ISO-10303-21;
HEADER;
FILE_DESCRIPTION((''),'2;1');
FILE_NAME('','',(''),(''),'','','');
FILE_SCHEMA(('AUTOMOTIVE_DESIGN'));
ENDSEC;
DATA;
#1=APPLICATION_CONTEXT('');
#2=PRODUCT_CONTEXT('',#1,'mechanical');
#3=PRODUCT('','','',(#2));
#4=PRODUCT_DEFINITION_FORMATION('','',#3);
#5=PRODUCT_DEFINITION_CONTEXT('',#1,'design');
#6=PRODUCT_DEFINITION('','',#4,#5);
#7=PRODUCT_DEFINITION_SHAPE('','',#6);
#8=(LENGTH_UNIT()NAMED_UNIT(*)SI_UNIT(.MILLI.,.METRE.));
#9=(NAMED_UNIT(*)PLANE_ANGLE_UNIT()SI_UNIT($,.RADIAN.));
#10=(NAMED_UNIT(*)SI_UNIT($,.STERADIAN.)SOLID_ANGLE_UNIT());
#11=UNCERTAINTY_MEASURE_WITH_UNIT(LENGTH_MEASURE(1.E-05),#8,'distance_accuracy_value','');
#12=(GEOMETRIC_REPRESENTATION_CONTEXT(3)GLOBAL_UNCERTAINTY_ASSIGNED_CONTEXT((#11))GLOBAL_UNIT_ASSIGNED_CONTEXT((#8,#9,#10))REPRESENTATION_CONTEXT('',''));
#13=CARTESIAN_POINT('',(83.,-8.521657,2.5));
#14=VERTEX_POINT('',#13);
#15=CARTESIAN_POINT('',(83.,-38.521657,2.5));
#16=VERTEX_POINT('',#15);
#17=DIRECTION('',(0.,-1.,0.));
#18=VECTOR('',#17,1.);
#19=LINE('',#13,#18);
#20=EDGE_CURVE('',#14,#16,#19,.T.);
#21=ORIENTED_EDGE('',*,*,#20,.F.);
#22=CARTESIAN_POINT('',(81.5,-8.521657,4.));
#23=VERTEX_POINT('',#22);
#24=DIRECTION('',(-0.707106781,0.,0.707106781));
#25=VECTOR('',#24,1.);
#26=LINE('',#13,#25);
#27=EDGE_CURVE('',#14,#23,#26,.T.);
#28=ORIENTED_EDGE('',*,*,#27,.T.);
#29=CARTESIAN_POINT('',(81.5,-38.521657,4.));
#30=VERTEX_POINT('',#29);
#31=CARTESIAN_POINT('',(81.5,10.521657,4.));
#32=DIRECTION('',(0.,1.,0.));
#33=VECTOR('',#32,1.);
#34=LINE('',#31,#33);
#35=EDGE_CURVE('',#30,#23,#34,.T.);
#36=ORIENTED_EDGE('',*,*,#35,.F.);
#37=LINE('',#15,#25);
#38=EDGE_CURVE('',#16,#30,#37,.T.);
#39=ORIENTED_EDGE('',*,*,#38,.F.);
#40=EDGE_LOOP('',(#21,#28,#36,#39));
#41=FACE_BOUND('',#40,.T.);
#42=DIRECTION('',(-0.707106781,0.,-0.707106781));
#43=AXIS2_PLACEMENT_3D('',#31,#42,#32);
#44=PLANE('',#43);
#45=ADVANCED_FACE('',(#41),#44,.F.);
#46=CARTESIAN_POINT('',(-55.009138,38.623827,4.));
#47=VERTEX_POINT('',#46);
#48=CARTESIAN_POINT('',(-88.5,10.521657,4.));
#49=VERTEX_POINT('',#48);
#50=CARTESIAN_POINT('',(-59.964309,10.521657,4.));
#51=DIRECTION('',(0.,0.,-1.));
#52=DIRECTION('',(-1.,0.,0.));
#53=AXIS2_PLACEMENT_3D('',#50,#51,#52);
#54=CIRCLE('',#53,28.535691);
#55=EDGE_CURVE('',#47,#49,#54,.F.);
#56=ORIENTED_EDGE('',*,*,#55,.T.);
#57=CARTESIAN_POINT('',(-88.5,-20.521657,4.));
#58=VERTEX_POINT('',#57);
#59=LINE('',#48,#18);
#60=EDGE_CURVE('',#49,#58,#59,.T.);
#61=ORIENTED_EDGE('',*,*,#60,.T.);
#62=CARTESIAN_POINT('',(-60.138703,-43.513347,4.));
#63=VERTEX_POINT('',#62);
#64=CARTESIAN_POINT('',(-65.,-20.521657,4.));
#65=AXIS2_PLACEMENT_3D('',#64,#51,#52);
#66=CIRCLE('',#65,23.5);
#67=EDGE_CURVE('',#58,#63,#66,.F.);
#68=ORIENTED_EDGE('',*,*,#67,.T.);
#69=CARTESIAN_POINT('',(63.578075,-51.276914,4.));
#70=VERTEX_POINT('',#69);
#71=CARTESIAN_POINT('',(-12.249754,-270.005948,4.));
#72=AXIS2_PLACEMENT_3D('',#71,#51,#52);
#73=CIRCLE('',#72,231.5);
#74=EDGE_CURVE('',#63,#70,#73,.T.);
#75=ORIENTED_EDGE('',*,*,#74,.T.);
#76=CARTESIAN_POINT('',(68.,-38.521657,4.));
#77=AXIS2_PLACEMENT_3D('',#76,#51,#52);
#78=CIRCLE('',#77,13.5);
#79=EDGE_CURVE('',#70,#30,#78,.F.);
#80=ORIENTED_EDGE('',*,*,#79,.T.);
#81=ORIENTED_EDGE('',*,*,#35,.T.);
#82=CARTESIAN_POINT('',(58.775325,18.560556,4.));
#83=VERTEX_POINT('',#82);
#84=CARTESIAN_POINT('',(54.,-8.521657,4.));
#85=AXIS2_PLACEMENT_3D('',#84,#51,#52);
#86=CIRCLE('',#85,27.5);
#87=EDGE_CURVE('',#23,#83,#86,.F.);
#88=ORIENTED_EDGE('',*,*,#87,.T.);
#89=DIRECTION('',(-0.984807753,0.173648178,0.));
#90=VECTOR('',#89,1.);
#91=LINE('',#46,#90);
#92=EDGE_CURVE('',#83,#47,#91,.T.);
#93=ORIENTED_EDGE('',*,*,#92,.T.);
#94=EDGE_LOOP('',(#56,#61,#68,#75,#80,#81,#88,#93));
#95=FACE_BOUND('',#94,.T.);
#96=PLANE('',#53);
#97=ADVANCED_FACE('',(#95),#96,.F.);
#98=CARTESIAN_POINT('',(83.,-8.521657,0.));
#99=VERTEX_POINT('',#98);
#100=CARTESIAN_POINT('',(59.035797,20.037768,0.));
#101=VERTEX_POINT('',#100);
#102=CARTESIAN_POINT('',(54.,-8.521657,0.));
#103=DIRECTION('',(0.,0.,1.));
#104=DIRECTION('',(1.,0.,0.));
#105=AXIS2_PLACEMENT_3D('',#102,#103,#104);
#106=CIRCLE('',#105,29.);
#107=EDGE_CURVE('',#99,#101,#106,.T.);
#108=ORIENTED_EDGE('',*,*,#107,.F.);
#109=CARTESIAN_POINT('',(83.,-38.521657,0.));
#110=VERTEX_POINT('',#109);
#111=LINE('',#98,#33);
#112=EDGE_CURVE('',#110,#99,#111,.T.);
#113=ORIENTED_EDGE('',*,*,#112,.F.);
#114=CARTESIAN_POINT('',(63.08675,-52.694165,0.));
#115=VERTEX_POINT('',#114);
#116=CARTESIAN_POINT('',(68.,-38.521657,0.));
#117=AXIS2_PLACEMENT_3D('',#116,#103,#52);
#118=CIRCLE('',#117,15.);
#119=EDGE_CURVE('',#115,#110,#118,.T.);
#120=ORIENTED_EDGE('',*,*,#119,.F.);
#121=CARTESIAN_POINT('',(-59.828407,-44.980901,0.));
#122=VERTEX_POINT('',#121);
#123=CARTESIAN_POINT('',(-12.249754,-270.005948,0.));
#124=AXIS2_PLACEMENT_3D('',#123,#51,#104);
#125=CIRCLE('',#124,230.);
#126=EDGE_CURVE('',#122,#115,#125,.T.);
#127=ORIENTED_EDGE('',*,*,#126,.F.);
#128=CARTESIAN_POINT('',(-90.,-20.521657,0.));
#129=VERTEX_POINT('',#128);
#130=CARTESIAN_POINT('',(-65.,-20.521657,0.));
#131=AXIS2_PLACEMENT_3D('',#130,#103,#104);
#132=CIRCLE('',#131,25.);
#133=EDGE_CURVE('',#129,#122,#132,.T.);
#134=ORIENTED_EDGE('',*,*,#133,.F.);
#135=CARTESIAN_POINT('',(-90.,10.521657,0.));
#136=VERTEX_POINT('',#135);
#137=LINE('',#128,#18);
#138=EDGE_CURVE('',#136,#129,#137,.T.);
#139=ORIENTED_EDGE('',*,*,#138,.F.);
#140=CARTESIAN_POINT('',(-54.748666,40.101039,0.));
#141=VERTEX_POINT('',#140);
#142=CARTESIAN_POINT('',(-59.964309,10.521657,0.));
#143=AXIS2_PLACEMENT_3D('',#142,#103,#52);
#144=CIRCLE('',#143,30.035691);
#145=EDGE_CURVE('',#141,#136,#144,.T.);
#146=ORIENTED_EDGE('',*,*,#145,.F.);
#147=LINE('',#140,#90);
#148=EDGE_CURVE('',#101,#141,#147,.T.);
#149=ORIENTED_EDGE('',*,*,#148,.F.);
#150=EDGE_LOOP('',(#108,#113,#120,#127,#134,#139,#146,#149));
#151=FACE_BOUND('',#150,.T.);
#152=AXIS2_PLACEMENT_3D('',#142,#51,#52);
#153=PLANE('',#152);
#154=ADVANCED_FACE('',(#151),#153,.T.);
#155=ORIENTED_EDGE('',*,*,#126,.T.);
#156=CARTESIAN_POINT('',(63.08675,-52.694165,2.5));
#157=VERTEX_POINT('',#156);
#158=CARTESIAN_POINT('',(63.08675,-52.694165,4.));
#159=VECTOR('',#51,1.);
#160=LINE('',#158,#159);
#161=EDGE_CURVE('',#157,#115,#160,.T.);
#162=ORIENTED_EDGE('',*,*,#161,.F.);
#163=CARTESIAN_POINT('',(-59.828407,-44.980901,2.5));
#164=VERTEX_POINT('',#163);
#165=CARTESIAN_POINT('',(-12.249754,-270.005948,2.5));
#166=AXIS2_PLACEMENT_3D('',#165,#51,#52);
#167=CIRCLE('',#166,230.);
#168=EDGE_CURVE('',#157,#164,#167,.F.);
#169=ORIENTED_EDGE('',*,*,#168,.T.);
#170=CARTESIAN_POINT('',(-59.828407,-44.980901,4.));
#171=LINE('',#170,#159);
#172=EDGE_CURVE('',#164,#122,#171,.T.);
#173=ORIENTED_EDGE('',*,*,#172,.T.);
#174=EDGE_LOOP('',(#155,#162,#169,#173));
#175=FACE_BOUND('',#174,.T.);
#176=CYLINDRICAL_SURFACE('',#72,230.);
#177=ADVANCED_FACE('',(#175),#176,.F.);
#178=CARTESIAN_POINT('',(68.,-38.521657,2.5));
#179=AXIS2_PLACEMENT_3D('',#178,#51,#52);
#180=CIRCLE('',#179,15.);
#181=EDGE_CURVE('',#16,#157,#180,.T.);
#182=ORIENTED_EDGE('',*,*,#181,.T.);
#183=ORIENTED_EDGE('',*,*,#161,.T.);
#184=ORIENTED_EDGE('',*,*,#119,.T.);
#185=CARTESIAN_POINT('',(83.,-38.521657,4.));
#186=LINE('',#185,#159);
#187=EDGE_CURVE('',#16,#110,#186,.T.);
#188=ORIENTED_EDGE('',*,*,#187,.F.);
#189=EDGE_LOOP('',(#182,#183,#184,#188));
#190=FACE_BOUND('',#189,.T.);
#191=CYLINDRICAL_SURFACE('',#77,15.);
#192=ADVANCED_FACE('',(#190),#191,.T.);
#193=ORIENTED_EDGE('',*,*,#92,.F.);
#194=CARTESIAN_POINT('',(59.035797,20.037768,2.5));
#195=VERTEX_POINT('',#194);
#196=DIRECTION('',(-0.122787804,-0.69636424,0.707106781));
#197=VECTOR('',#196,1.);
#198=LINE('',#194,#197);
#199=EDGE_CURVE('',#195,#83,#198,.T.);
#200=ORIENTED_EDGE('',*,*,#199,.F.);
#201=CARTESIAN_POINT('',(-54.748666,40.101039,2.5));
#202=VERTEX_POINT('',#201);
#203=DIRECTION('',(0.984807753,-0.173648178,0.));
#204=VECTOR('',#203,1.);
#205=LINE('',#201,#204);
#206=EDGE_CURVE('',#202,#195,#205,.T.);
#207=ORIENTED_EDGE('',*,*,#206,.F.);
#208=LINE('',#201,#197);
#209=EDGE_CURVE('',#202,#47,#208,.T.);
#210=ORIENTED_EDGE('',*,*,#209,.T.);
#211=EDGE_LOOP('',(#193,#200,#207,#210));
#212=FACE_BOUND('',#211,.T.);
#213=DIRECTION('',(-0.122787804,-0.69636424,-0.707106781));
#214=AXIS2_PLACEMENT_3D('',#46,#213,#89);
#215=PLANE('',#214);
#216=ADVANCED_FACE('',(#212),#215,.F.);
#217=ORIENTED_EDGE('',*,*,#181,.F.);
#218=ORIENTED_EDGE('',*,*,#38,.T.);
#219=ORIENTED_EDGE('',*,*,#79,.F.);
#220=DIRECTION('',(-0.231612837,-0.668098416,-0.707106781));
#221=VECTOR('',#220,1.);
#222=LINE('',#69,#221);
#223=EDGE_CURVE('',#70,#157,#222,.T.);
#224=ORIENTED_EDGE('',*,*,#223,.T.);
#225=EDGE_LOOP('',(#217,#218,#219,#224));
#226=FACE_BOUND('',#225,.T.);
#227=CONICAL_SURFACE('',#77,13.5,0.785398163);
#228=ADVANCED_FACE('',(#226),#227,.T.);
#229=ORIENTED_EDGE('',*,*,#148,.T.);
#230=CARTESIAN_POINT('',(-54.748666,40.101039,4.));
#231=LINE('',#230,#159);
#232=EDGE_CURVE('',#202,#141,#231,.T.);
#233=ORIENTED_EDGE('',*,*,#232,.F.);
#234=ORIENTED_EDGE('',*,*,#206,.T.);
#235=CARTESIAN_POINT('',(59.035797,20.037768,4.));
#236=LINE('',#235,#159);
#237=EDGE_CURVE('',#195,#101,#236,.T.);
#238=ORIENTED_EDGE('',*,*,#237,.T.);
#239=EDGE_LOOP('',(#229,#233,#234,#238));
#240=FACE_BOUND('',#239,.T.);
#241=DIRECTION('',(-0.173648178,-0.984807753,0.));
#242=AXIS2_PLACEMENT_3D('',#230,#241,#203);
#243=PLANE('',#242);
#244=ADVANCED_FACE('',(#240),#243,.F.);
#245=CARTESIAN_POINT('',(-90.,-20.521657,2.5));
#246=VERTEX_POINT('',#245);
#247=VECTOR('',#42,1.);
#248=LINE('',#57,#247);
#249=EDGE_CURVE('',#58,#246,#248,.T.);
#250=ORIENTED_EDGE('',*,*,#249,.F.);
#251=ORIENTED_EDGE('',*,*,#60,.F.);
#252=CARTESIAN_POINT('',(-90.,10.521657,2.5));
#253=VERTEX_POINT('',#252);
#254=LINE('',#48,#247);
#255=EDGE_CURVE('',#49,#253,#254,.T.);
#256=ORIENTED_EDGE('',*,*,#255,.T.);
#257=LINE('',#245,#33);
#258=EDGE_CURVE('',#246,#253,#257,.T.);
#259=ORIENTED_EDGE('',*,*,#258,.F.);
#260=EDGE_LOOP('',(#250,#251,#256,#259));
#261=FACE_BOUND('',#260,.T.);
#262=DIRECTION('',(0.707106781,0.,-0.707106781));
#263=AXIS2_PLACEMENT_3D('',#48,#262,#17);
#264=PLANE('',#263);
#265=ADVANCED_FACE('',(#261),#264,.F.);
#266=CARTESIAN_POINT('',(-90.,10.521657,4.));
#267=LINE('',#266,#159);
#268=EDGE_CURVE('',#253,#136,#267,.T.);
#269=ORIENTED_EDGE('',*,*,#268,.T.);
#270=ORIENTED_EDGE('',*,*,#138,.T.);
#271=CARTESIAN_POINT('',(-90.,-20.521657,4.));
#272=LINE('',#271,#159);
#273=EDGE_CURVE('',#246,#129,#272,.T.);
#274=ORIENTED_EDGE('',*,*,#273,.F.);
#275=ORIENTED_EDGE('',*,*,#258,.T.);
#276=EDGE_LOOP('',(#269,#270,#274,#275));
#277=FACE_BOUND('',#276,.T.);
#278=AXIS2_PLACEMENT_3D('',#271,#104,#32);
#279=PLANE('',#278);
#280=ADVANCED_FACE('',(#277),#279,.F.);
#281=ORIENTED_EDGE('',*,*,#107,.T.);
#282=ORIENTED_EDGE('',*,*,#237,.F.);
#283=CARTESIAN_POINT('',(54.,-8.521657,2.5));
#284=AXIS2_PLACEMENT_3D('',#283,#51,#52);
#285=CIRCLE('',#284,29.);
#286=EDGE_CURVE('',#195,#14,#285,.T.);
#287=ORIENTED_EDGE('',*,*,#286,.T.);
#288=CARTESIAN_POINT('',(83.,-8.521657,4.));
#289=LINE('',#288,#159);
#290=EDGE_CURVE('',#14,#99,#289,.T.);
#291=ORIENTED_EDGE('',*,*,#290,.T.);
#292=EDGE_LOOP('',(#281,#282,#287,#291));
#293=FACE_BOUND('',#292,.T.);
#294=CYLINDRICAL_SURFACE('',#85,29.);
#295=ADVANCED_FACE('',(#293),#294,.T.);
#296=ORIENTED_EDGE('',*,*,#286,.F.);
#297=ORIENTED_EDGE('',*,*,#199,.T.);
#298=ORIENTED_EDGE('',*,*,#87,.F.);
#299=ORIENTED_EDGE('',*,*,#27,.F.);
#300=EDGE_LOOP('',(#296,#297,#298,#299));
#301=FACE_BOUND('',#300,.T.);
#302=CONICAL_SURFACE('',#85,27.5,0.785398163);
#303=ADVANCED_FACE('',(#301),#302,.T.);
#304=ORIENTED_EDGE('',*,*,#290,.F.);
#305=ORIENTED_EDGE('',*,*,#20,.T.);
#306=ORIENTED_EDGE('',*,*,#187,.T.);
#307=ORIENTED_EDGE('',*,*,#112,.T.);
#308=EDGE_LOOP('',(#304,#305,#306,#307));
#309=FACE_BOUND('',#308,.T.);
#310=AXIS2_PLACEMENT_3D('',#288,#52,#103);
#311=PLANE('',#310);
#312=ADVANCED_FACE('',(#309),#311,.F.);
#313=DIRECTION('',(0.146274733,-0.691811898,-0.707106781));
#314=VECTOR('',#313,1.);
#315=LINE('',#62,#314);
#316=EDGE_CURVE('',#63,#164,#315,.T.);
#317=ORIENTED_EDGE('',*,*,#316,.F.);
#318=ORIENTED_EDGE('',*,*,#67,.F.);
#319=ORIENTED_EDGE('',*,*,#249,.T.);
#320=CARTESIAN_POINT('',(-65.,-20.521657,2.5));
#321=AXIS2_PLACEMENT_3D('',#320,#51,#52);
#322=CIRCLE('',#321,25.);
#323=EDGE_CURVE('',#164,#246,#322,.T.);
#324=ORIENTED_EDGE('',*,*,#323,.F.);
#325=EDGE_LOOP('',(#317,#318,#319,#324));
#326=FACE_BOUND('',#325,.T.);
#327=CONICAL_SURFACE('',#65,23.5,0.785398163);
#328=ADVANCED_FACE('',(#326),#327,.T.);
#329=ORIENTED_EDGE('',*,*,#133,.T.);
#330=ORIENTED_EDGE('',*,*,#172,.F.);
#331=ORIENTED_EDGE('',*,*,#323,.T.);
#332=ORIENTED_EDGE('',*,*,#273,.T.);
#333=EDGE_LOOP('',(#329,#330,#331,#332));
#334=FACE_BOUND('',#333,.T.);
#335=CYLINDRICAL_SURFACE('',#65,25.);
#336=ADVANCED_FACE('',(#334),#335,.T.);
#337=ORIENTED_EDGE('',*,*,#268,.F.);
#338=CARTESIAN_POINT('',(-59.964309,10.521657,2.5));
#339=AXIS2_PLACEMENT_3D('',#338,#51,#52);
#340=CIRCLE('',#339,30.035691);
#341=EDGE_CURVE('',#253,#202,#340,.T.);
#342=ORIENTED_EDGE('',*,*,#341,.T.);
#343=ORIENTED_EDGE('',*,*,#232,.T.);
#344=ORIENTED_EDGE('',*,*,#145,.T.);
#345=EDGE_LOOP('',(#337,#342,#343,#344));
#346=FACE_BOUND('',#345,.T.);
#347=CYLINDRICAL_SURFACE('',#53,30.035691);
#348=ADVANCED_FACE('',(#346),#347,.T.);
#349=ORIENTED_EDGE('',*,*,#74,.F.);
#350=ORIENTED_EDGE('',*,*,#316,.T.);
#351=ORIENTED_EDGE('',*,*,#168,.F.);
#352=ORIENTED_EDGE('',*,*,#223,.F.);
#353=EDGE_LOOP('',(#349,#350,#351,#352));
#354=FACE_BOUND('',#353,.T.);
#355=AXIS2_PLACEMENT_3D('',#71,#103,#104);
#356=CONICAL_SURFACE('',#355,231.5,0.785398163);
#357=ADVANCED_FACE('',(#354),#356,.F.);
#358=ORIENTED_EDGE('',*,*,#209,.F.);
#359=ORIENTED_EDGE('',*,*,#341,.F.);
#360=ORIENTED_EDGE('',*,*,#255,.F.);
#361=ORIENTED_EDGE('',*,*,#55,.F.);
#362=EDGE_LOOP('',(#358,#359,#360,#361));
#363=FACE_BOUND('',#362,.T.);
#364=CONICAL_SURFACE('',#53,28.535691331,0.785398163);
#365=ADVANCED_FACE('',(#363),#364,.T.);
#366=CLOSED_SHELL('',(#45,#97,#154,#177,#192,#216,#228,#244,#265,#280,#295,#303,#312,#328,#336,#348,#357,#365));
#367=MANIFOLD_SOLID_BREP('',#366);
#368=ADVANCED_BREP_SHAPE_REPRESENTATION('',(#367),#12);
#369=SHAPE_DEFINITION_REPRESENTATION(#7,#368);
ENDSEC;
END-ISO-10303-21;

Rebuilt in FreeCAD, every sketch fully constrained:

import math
import FreeCAD as App
import Part
import Sketcher

V = App.Vector
Q = App.Units.Quantity


def edges_at(feature, points):
    """Names of the edges that pass closest to the given points."""
    edges = feature.Shape.Edges
    near = lambda p: min(range(len(edges)), key=lambda i: edges[i].distToShape(Part.Vertex(*p))[0])
    return sorted({f"Edge{near(p) + 1}" for p in points})

doc = App.newDocument("Part")
body = doc.addObject("PartDesign::Body", "Body")

# Sketch on XY plane
sketch1 = doc.addObject("Sketcher::SketchObject", "Sketch")
body.addObject(sketch1)
sketch1.AttachmentSupport = (doc.XY_Plane, [""])
sketch1.MapMode = "FlatFace"
sketch1.addGeometry([
    Part.LineSegment(V(59, 20, 0), V(-55, 40, 0)),  # 0
    Part.ArcOfCircle(Part.Circle(V(-60, 11, 0), V(0, 0, 1), 30), math.radians(80), math.radians(180)),  # 1
    Part.LineSegment(V(-90, 11, 0), V(-90, -21, 0)),  # 2
    Part.ArcOfCircle(Part.Circle(V(-65, -21, 0), V(0, 0, 1), 25), math.radians(180), math.radians(282)),  # 3
    Part.ArcOfCircle(Part.Circle(V(-12, -270, 0), V(0, 0, 1), 230), math.radians(71), math.radians(102)),  # 4
    Part.ArcOfCircle(Part.Circle(V(68, -39, 0), V(0, 0, 1), 15), math.radians(-109), math.radians(0)),  # 5
    Part.LineSegment(V(83, -39, 0), V(83, -9, 0)),  # 6
    Part.ArcOfCircle(Part.Circle(V(54, -9, 0), V(0, 0, 1), 29), math.radians(0), math.radians(80)),  # 7
], False)
sketch1.addConstraint([
    Sketcher.Constraint("Tangent", 0, 2, 1, 1),
    Sketcher.Constraint("Tangent", 1, 2, 2, 1),
    Sketcher.Constraint("Tangent", 2, 2, 3, 1),
    Sketcher.Constraint("Tangent", 3, 2, 4, 2),
    Sketcher.Constraint("Tangent", 4, 1, 5, 1),
    Sketcher.Constraint("Tangent", 5, 2, 6, 1),
    Sketcher.Constraint("Tangent", 6, 2, 7, 1),
    Sketcher.Constraint("Tangent", 7, 2, 0, 1),
    Sketcher.Constraint("Vertical", 2),
    Sketcher.Constraint("Vertical", 6),
    Sketcher.Constraint("Radius", 3, Q("25 mm")),
    Sketcher.Constraint("Radius", 4, Q("230 mm")),
    Sketcher.Constraint("Radius", 5, Q("15 mm")),
    Sketcher.Constraint("Radius", 7, Q("29 mm")),
    Sketcher.Constraint("DistanceY", 6, 1, 6, 2, Q("30 mm")),
    Sketcher.Constraint("Angle", 0, Q("170 deg")),
    Sketcher.Constraint("DistanceX", 3, 3, -1, 1, Q("65 mm")),
    Sketcher.Constraint("DistanceX", -1, 1, 5, 3, Q("68 mm")),
    Sketcher.Constraint("DistanceY", 5, 3, 3, 3, Q("18 mm")),
    Sketcher.Constraint("Radius", 1, Q("30.035691 mm")),
    Sketcher.Constraint("DistanceY", 3, 2, -1, 1, Q("44.980901 mm")),
])
pad1 = doc.addObject("PartDesign::Pad", "Pad")
body.addObject(pad1)
pad1.Profile = sketch1
pad1.Length = 4
doc.recompute()

chamfer = doc.addObject("PartDesign::Chamfer", "Chamfer")
body.addObject(chamfer)
chamfer.Base = (pad1, edges_at(pad1, [
    (-80.743, -39.942, 4),
    (2.155, -40.457, 4),
    (76.698, -50.743, 4),
    (83, -23.522, 4),
    (76.215, 10.119, 4),
    (2.144, 30.069, 4),
    (-79.271, 33.53, 4),
    (-90, -5, 4),
]))
chamfer.Size = 1.5

doc.recompute()
